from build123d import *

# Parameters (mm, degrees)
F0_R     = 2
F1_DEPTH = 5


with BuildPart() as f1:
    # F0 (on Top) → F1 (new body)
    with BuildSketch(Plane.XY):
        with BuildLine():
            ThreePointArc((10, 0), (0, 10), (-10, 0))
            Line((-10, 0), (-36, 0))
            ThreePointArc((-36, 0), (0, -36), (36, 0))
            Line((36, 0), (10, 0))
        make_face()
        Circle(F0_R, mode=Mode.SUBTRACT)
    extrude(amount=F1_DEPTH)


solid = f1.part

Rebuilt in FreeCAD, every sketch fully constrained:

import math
import FreeCAD as App
import Part
import Sketcher
from FreeCAD import Vector

doc = App.newDocument("Part")
body = doc.addObject("PartDesign::Body", "Body")

# Sketch on XY plane
sketch1 = doc.addObject("Sketcher::SketchObject", "Sketch")
body.addObject(sketch1)
sketch1.AttachmentSupport = (doc.XY_Plane, [""])
sketch1.MapMode = "FlatFace"
sketch1.addGeometry([
    Part.ArcOfCircle(Part.Circle(Vector(0, 0, 0), Vector(0, 0, 1), 10), math.radians(0), math.radians(180)),  # 0
    Part.LineSegment(Vector(-10, 0, 0), Vector(-36, 0, 0)),  # 1
    Part.ArcOfCircle(Part.Circle(Vector(0, 0, 0), Vector(0, 0, 1), 36), math.radians(180), math.radians(360)),  # 2
    Part.LineSegment(Vector(36, 0, 0), Vector(10, 0, 0)),  # 3
    Part.Circle(Vector(0, 0, 0), Vector(0, 0, 1), 2),  # 4
], False)
sketch1.addConstraint([
    Sketcher.Constraint("Coincident", 0, 2, 1, 1),
    Sketcher.Constraint("Coincident", 1, 2, 2, 1),
    Sketcher.Constraint("Coincident", 2, 2, 3, 1),
    Sketcher.Constraint("Coincident", 3, 2, 0, 1),
    Sketcher.Constraint("Horizontal", 1),
    Sketcher.Constraint("Horizontal", 3),
    Sketcher.Constraint("Coincident", 0, 3, -1, 1),
    Sketcher.Constraint("Coincident", 2, 3, -1, 1),
    Sketcher.Constraint("Coincident", 4, 3, -1, 1),
    Sketcher.Constraint("PointOnObject", 0, 2, -1),
    Sketcher.Constraint("PointOnObject", 2, 2, -1),
    Sketcher.Constraint("Diameter", 4, 4.0),
    Sketcher.Constraint("Radius", 0, 10.0),
    Sketcher.Constraint("Radius", 2, 36.0),
])
pad1 = doc.addObject("PartDesign::Pad", "Pad")
body.addObject(pad1)
pad1.Profile = sketch1
pad1.Length = 5

doc.recompute()
